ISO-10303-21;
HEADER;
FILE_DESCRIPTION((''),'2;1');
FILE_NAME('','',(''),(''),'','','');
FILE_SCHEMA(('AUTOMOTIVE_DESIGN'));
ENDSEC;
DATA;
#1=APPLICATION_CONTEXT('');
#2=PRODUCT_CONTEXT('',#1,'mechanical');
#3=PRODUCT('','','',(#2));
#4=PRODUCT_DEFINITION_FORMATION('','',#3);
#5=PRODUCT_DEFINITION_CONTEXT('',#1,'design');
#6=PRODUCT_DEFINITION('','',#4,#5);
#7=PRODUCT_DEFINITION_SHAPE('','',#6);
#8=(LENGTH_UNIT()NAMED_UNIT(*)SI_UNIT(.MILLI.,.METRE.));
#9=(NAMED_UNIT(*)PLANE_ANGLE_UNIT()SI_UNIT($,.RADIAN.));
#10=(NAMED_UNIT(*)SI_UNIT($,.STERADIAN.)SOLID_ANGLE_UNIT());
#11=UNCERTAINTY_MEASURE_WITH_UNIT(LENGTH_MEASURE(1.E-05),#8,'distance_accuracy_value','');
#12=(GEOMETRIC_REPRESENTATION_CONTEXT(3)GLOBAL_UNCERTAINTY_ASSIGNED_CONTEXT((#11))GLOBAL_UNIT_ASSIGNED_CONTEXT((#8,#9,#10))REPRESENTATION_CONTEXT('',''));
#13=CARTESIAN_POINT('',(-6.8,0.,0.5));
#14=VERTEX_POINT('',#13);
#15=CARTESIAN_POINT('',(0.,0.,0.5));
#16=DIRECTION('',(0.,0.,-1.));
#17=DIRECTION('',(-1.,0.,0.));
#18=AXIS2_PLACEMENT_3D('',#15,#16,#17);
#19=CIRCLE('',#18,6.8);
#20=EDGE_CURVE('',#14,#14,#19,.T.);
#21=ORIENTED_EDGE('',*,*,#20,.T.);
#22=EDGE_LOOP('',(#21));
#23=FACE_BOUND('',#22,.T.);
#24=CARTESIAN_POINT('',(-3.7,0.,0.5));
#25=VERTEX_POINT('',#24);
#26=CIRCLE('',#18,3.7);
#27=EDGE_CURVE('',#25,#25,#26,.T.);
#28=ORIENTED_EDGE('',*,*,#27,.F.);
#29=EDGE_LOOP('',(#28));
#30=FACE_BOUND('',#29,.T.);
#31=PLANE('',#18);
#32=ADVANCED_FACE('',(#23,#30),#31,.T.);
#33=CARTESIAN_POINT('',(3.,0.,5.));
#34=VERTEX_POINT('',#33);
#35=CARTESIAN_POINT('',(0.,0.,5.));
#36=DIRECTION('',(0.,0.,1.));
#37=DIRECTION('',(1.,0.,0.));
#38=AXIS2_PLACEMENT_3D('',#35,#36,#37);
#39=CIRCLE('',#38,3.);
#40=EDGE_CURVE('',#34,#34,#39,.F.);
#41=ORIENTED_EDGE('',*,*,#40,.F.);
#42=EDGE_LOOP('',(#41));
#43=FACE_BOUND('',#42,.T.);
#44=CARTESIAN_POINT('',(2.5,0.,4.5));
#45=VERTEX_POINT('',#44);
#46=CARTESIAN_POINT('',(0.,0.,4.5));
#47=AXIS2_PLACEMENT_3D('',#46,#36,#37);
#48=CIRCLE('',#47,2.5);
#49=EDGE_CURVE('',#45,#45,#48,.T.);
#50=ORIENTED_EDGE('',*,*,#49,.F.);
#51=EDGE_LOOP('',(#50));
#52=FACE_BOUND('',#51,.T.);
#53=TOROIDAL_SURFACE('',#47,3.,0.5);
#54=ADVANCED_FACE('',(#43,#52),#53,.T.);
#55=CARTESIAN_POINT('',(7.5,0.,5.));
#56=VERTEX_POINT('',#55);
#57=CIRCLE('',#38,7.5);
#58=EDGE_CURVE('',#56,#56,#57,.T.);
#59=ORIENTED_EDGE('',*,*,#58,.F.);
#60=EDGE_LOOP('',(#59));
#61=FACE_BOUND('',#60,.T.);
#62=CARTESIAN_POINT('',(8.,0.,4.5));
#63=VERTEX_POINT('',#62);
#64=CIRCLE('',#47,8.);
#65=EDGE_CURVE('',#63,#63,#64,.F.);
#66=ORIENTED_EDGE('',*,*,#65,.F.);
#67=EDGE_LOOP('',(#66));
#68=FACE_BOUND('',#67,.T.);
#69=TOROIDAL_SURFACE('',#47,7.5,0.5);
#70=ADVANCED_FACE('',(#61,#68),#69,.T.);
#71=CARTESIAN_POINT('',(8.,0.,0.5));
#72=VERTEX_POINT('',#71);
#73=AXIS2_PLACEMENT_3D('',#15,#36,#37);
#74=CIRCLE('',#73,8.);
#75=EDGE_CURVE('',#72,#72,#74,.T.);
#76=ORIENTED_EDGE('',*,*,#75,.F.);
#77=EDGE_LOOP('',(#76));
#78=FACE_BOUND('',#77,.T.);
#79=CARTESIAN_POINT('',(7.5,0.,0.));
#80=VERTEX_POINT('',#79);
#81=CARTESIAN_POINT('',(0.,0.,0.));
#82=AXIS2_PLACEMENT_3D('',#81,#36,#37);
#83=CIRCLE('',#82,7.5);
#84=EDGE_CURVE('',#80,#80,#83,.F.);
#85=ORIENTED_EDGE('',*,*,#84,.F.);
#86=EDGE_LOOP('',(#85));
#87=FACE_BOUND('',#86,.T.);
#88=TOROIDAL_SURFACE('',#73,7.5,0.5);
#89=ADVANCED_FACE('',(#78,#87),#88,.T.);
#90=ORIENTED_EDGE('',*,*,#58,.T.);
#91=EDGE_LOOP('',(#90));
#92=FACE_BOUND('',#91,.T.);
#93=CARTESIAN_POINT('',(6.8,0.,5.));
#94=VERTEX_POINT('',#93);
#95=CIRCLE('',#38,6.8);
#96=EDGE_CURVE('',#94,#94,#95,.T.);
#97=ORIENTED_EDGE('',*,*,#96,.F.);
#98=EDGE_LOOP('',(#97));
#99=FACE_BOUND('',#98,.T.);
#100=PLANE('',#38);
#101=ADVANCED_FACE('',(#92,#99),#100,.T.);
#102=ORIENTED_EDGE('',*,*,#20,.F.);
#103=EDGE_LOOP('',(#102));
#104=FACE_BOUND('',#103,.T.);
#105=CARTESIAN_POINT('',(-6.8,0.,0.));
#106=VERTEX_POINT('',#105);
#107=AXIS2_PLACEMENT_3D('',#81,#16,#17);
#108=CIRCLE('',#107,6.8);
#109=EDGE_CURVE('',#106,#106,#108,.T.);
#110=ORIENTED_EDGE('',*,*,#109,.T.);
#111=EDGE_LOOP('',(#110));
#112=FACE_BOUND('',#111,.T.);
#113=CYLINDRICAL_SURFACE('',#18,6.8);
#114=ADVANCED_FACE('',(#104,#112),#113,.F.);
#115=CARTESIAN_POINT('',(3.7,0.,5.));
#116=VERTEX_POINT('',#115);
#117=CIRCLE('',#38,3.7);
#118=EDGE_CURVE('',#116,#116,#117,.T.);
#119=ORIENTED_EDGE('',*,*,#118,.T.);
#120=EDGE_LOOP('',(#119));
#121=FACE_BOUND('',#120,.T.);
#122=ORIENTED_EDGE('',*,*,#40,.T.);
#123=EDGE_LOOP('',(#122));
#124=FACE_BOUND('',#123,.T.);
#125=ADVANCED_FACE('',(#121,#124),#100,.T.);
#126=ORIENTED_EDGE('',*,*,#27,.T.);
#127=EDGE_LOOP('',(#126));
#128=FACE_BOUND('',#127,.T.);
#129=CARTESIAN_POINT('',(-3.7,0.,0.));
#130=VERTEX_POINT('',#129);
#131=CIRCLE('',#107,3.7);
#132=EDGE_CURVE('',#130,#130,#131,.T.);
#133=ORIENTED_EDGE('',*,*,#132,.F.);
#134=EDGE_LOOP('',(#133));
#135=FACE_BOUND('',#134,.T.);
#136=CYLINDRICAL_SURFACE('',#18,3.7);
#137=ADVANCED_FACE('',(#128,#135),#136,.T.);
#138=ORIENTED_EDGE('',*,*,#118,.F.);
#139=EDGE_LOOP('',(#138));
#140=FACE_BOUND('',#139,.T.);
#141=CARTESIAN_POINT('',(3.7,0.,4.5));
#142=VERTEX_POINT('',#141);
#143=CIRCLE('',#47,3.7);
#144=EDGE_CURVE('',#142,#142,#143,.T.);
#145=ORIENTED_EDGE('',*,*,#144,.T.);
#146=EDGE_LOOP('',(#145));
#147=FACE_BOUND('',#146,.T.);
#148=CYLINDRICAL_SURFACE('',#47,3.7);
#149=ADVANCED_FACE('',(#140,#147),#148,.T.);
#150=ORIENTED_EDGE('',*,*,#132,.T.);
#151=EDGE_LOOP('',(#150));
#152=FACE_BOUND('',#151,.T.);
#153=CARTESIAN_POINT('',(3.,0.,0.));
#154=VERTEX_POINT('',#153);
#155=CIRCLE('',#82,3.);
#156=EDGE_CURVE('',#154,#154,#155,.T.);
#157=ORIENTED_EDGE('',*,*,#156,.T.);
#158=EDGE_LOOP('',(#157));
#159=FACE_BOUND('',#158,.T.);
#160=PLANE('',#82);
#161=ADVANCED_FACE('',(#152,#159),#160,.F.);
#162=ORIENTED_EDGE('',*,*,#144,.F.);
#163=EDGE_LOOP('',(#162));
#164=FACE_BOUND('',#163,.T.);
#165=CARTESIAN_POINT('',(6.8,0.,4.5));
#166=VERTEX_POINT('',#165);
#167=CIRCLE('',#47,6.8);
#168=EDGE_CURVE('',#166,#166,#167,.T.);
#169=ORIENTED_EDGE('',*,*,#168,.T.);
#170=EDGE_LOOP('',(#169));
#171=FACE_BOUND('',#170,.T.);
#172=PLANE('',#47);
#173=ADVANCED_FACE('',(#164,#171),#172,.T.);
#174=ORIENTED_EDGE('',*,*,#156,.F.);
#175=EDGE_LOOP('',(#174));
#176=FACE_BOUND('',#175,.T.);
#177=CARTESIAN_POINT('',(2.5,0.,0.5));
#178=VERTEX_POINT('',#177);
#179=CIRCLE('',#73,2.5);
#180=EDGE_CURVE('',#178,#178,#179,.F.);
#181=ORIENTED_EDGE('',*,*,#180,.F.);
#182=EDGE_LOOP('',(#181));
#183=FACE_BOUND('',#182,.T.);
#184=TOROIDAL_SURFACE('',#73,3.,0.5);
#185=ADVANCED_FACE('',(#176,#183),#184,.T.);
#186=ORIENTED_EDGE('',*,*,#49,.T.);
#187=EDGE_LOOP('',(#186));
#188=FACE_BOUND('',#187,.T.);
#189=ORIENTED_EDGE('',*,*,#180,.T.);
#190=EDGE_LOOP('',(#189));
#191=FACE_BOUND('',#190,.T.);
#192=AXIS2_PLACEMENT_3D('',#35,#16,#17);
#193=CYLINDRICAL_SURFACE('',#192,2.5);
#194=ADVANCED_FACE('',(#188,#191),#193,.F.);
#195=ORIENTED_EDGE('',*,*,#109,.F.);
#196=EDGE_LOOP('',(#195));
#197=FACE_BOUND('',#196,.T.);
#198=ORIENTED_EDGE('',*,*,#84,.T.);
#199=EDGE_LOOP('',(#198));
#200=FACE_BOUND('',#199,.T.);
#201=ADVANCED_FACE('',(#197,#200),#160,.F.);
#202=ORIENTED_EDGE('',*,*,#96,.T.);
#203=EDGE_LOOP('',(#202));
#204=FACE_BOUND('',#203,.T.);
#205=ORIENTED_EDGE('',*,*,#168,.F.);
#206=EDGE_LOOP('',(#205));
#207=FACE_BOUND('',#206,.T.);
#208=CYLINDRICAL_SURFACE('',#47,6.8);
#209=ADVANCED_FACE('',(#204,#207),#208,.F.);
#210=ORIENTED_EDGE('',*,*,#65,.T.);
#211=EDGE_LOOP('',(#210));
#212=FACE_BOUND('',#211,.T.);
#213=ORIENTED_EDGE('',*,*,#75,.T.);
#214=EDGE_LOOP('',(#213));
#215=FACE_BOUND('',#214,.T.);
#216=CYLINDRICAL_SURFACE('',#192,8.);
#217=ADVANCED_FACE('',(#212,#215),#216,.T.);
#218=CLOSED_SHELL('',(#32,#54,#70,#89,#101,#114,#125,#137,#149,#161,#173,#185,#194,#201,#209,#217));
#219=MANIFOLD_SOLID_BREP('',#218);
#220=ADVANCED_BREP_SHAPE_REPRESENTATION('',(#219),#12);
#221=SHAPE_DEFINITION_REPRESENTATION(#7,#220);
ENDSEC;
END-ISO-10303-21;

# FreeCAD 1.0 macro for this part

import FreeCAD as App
import Part
import Sketcher

V = App.Vector
Q = App.Units.Quantity


def edges_at(feature, points):
    """Names of the edges that pass closest to the given points."""
    edges = feature.Shape.Edges
    near = lambda p: min(range(len(edges)), key=lambda i: edges[i].distToShape(Part.Vertex(*p))[0])
    return sorted({f"Edge{near(p) + 1}" for p in points})

doc = App.newDocument("Part")
body = doc.addObject("PartDesign::Body", "Body")

# Sketch on XY plane
sketch1 = body.newObject("Sketcher::SketchObject", "Sketch")
sketch1.AttachmentSupport = (doc.getObject("XY_Plane"), [""])
sketch1.MapMode = "FlatFace"
sketch1.addGeometry(Part.Circle(V(0, 0, 0), V(0, 0, 1), 8), False)
sketch1.addGeometry(Part.Circle(V(0, 0, 0), V(0, 0, 1), 2.5), False)
sketch1.addConstraint(Sketcher.Constraint("Coincident", 0, 3, -1, 1))
sketch1.addConstraint(Sketcher.Constraint("Coincident", 1, 3, -1, 1))
sketch1.addConstraint(Sketcher.Constraint("Diameter", 0, Q("16 mm")))
sketch1.addConstraint(Sketcher.Constraint("Diameter", 1, Q("5 mm")))
pad1 = body.newObject("PartDesign::Pad", "Pad")
pad1.Profile = sketch1
pad1.Length = 5

# Sketch on XY plane
sketch2 = body.newObject("Sketcher::SketchObject", "Sketch001")
sketch2.AttachmentSupport = (doc.getObject("XY_Plane"), [""])
sketch2.MapMode = "FlatFace"
sketch2.AttachmentOffset = App.Placement(V(0, 0, 5), App.Rotation())
sketch2.addGeometry(Part.Circle(V(0, 0, 0), V(0, 0, 1), 6.8), False)
sketch2.addGeometry(Part.Circle(V(0, 0, 0), V(0, 0, 1), 3.7), False)
sketch2.addConstraint(Sketcher.Constraint("Coincident", 0, 3, -1, 1))
sketch2.addConstraint(Sketcher.Constraint("Coincident", 1, 3, -1, 1))
sketch2.addConstraint(Sketcher.Constraint("Diameter", 0, Q("13.6 mm")))
sketch2.addConstraint(Sketcher.Constraint("Diameter", 1, Q("7.4 mm")))
pocket1 = body.newObject("PartDesign::Pocket", "Pocket")
pocket1.Profile = sketch2
pocket1.Length = 0.5

# Sketch on XY plane
sketch3 = body.newObject("Sketcher::SketchObject", "Sketch002")
sketch3.AttachmentSupport = (doc.getObject("XY_Plane"), [""])
sketch3.MapMode = "FlatFace"
sketch3.AttachmentOffset = App.Placement(V(0, 0, 0.5), App.Rotation())
sketch3.addGeometry(Part.Circle(V(0, 0, 0), V(0, 0, 1), 6.8), False)
sketch3.addGeometry(Part.Circle(V(0, 0, 0), V(0, 0, 1), 3.7), False)
sketch3.addConstraint(Sketcher.Constraint("Coincident", 0, 3, -1, 1))
sketch3.addConstraint(Sketcher.Constraint("Coincident", 1, 3, -1, 1))
sketch3.addConstraint(Sketcher.Constraint("Diameter", 0, Q("13.6 mm")))
sketch3.addConstraint(Sketcher.Constraint("Diameter", 1, Q("7.4 mm")))
pocket2 = body.newObject("PartDesign::Pocket", "Pocket001")
pocket2.Profile = sketch3
pocket2.Length = 0.5
doc.recompute()

fillet = body.newObject("PartDesign::Fillet", "Fillet")
fillet.Base = (pocket2, edges_at(pocket2, [
    (-8, 0, 0),
    (-8, 0, 5),
    (-2.5, 0, 0),
    (-2.5, 0, 5),
]))
fillet.Radius = 0.5

doc.recompute()
